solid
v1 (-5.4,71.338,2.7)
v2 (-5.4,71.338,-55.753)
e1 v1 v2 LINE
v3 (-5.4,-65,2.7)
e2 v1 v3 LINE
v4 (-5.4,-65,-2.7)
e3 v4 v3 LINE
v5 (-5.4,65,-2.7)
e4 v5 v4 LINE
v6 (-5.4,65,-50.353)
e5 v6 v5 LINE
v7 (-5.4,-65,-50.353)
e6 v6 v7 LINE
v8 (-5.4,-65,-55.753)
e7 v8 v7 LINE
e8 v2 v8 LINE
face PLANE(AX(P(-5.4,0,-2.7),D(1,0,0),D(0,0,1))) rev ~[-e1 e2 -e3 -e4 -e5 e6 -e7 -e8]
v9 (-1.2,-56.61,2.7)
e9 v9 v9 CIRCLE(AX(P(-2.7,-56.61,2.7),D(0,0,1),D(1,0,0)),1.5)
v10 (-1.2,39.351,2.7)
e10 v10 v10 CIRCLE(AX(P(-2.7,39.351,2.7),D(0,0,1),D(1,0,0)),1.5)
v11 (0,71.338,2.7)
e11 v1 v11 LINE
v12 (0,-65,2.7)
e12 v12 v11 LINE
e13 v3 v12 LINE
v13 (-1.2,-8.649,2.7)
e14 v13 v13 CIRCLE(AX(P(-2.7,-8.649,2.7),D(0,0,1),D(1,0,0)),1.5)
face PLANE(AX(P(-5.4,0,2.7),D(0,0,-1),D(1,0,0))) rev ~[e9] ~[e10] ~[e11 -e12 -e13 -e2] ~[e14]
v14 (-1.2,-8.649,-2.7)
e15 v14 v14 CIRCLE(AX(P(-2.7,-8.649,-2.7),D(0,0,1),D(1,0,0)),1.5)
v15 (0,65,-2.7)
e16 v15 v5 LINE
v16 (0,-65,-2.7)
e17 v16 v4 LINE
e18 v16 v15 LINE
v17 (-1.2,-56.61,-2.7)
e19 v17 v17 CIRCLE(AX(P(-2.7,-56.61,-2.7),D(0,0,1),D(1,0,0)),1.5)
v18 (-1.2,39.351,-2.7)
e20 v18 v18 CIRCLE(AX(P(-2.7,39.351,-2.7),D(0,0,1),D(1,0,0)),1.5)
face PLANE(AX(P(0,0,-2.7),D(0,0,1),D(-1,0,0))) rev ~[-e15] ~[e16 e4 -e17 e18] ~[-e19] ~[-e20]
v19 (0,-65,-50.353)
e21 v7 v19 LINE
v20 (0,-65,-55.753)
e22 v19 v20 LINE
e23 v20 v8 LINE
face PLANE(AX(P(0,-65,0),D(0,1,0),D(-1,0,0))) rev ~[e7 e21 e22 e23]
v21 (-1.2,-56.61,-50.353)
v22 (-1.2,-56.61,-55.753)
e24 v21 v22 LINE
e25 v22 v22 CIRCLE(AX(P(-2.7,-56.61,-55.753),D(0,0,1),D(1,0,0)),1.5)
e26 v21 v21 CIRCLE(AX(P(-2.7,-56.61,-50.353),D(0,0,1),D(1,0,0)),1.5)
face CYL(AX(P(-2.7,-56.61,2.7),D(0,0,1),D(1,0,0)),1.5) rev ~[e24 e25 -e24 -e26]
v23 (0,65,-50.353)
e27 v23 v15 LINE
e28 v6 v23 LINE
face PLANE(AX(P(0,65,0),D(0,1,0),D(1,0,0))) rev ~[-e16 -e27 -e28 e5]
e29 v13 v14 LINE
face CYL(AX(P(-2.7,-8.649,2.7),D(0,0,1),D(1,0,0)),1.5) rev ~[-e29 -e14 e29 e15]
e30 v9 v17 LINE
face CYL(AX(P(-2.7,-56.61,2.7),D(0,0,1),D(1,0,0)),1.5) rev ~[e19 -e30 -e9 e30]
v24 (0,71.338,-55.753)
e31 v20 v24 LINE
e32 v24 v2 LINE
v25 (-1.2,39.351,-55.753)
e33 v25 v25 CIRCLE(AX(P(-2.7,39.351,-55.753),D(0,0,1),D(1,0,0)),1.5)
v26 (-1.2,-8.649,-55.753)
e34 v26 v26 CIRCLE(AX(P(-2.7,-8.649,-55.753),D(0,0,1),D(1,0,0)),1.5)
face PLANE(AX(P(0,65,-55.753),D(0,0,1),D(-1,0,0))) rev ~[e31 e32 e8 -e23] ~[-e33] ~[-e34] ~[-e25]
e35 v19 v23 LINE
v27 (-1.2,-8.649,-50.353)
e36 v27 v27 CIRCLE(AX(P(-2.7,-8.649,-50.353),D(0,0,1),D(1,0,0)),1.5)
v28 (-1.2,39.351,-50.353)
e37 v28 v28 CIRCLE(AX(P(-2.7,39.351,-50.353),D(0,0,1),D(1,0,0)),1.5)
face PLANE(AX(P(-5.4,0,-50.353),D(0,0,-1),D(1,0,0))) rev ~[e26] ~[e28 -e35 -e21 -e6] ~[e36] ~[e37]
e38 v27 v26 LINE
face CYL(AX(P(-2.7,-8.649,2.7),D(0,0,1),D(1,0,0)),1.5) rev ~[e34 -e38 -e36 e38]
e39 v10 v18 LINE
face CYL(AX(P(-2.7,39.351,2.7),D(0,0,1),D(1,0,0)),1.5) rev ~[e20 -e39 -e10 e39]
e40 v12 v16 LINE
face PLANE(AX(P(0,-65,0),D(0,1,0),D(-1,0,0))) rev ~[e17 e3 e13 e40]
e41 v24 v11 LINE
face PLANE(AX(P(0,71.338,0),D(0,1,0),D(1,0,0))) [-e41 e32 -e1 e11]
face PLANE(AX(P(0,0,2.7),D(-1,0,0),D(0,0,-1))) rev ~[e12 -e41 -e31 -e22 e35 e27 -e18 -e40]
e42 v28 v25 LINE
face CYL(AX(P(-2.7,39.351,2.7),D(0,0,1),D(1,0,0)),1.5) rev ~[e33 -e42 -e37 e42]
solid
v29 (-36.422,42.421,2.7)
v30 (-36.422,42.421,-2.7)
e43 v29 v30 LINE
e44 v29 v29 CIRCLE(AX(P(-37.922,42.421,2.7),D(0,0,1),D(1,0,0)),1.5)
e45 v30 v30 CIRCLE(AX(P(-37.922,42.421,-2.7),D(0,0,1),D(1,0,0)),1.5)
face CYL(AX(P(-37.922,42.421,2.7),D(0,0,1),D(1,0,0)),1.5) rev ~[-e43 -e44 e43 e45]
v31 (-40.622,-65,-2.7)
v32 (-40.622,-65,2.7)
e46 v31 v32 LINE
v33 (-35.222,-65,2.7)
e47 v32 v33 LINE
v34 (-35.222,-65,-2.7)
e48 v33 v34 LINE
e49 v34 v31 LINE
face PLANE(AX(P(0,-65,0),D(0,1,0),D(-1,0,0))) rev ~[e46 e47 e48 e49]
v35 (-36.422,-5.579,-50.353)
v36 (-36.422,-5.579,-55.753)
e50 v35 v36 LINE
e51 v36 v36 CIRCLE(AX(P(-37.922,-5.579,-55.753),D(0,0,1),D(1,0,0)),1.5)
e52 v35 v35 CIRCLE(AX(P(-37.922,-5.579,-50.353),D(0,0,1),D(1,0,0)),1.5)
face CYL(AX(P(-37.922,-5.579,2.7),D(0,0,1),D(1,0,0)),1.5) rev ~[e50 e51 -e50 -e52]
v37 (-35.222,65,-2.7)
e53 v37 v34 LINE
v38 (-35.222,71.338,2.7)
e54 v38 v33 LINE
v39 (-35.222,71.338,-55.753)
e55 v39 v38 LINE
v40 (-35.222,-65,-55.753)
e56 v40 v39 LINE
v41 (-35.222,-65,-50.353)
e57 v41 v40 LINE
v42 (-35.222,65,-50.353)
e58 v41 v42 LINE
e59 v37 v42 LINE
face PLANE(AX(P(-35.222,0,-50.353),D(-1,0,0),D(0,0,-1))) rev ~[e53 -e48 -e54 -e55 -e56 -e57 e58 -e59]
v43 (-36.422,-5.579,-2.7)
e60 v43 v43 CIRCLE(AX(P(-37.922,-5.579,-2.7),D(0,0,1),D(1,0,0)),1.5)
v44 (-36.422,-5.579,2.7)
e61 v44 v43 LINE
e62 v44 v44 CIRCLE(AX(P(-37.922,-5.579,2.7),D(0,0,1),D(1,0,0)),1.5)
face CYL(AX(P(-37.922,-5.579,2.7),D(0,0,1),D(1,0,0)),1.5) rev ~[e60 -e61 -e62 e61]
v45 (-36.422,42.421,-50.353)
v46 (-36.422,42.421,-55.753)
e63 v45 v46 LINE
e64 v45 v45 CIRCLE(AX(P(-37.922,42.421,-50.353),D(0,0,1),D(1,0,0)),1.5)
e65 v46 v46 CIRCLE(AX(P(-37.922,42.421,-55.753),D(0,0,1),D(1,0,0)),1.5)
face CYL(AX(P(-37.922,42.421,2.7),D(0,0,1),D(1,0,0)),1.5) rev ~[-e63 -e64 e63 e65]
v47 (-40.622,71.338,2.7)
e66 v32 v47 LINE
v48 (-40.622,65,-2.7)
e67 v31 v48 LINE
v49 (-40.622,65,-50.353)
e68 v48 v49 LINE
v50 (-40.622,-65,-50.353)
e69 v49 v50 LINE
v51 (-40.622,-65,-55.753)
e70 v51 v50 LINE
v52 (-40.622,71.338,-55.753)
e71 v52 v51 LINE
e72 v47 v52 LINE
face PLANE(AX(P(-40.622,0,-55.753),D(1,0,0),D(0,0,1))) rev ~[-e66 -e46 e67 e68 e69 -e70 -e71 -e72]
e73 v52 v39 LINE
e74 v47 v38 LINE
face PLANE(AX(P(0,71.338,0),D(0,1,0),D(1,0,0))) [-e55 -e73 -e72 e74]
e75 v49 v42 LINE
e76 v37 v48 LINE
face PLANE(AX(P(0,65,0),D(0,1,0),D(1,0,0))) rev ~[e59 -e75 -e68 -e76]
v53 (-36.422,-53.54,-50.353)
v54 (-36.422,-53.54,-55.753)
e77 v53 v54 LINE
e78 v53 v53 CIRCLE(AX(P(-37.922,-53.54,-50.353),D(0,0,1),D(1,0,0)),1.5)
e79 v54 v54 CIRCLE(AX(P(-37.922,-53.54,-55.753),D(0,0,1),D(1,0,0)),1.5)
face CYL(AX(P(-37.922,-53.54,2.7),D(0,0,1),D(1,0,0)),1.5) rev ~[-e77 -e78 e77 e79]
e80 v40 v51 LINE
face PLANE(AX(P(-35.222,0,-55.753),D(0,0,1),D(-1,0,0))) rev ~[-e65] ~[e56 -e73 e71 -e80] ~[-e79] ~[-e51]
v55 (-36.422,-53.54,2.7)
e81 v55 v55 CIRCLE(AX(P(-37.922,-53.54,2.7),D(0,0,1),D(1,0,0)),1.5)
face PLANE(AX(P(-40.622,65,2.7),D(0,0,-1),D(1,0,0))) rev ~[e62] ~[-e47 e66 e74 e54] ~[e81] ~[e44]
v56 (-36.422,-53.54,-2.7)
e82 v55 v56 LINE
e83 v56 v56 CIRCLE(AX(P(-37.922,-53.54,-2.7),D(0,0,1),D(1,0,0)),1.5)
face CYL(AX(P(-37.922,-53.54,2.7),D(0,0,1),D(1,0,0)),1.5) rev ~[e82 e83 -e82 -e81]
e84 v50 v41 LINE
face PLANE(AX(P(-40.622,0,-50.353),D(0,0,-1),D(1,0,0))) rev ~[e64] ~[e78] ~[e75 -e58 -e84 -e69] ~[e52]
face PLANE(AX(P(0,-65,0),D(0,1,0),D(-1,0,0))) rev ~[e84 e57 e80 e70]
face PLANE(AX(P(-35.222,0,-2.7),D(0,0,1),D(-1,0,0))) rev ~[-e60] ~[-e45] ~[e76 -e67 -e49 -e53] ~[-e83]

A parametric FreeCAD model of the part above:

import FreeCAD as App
import Part
import Sketcher

doc = App.newDocument("Part")
body = doc.addObject("PartDesign::Body", "Body")
body.AllowCompound = True

sketch1 = doc.addObject("Sketcher::SketchObject", "Sketch")
body.addObject(sketch1)
sketch1.AttachmentSupport = (doc.XZ_Plane, [""])
sketch1.MapMode = "FlatFace"
sketch1.addGeometry(Part.LineSegment(App.Vector(-5.4, 2.7, 0), App.Vector(0, 2.7, 0)), False)
sketch1.addGeometry(Part.LineSegment(App.Vector(0, 2.7, 0), App.Vector(0, -2.7, 0)), False)
sketch1.addGeometry(Part.LineSegment(App.Vector(0, -2.7, 0), App.Vector(-5.4, -2.7, 0)), False)
sketch1.addGeometry(Part.LineSegment(App.Vector(-5.4, -2.7, 0), App.Vector(-5.4, 2.7, 0)), False)
sketch1.addGeometry(Part.LineSegment(App.Vector(-5.4, -50.353, 0), App.Vector(0, -50.353, 0)), False)
sketch1.addGeometry(Part.LineSegment(App.Vector(0, -50.353, 0), App.Vector(0, -55.753, 0)), False)
sketch1.addGeometry(Part.LineSegment(App.Vector(0, -55.753, 0), App.Vector(-5.4, -55.753, 0)), False)
sketch1.addGeometry(Part.LineSegment(App.Vector(-5.4, -55.753, 0), App.Vector(-5.4, -50.353, 0)), False)
sketch1.addGeometry(Part.LineSegment(App.Vector(-40.622, -50.353, 0), App.Vector(-35.222, -50.353, 0)), False)
sketch1.addGeometry(Part.LineSegment(App.Vector(-35.222, -50.353, 0), App.Vector(-35.222, -55.753, 0)), False)
sketch1.addGeometry(Part.LineSegment(App.Vector(-35.222, -55.753, 0), App.Vector(-40.622, -55.753, 0)), False)
sketch1.addGeometry(Part.LineSegment(App.Vector(-40.622, -55.753, 0), App.Vector(-40.622, -50.353, 0)), False)
sketch1.addGeometry(Part.LineSegment(App.Vector(-35.222, -2.7, 0), App.Vector(-40.622, -2.7, 0)), False)
sketch1.addGeometry(Part.LineSegment(App.Vector(-40.622, -2.7, 0), App.Vector(-40.622, 2.7, 0)), False)
sketch1.addGeometry(Part.LineSegment(App.Vector(-40.622, 2.7, 0), App.Vector(-35.222, 2.7, 0)), False)
sketch1.addGeometry(Part.LineSegment(App.Vector(-35.222, 2.7, 0), App.Vector(-35.222, -2.7, 0)), False)
sketch1.addConstraint(Sketcher.Constraint("Coincident", 0, 2, 1, 1))
sketch1.addConstraint(Sketcher.Constraint("Coincident", 1, 2, 2, 1))
sketch1.addConstraint(Sketcher.Constraint("Coincident", 2, 2, 3, 1))
sketch1.addConstraint(Sketcher.Constraint("Coincident", 3, 2, 0, 1))
sketch1.addConstraint(Sketcher.Constraint("Coincident", 4, 2, 5, 1))
sketch1.addConstraint(Sketcher.Constraint("Coincident", 5, 2, 6, 1))
sketch1.addConstraint(Sketcher.Constraint("Coincident", 6, 2, 7, 1))
sketch1.addConstraint(Sketcher.Constraint("Coincident", 7, 2, 4, 1))
sketch1.addConstraint(Sketcher.Constraint("Coincident", 8, 2, 9, 1))
sketch1.addConstraint(Sketcher.Constraint("Coincident", 9, 2, 10, 1))
sketch1.addConstraint(Sketcher.Constraint("Coincident", 10, 2, 11, 1))
sketch1.addConstraint(Sketcher.Constraint("Coincident", 11, 2, 8, 1))
sketch1.addConstraint(Sketcher.Constraint("Coincident", 12, 2, 13, 1))
sketch1.addConstraint(Sketcher.Constraint("Coincident", 13, 2, 14, 1))
sketch1.addConstraint(Sketcher.Constraint("Coincident", 14, 2, 15, 1))
sketch1.addConstraint(Sketcher.Constraint("Coincident", 15, 2, 12, 1))
sketch1.addConstraint(Sketcher.Constraint("Horizontal", 0))
sketch1.addConstraint(Sketcher.Constraint("Vertical", 1))
sketch1.addConstraint(Sketcher.Constraint("Horizontal", 2))
sketch1.addConstraint(Sketcher.Constraint("Vertical", 3))
sketch1.addConstraint(Sketcher.Constraint("Horizontal", 4))
sketch1.addConstraint(Sketcher.Constraint("Vertical", 5))
sketch1.addConstraint(Sketcher.Constraint("Horizontal", 6))
sketch1.addConstraint(Sketcher.Constraint("Vertical", 7))
sketch1.addConstraint(Sketcher.Constraint("Horizontal", 8))
sketch1.addConstraint(Sketcher.Constraint("Vertical", 9))
sketch1.addConstraint(Sketcher.Constraint("Horizontal", 10))
sketch1.addConstraint(Sketcher.Constraint("Vertical", 11))
sketch1.addConstraint(Sketcher.Constraint("Horizontal", 12))
sketch1.addConstraint(Sketcher.Constraint("Vertical", 13))
sketch1.addConstraint(Sketcher.Constraint("Horizontal", 14))
sketch1.addConstraint(Sketcher.Constraint("Vertical", 15))
sketch1.addConstraint(Sketcher.Constraint("Symmetric", 0, 2, 1, 2, -1, 1))
sketch1.addConstraint(Sketcher.Constraint("PointOnObject", 4, 2, -2))
sketch1.addConstraint(Sketcher.Constraint("Horizontal", 7, 2, 8, 2))
sketch1.addConstraint(Sketcher.Constraint("Horizontal", 6, 2, 9, 2))
sketch1.addConstraint(Sketcher.Constraint("Horizontal", 2, 2, 12, 2))
sketch1.addConstraint(Sketcher.Constraint("Horizontal", 3, 2, 13, 2))
sketch1.addConstraint(Sketcher.Constraint("Vertical", 3, 2, 6, 2))
sketch1.addConstraint(Sketcher.Constraint("Vertical", 11, 2, 12, 2))
sketch1.addConstraint(Sketcher.Constraint("Vertical", 9, 2, 14, 2))
sketch1.addConstraint(Sketcher.Constraint("Equal", 6, 8))
sketch1.addConstraint(Sketcher.Constraint("Equal", 14, 1))
sketch1.addConstraint(Sketcher.Constraint("Equal", 3, 5))
sketch1.addConstraint(Sketcher.Constraint("DistanceX", 0, 1, 0, 2, 5.4))
sketch1.addConstraint(Sketcher.Constraint("DistanceX", 8, 2, -1, 1, 35.222))
sketch1.addConstraint(Sketcher.Constraint("DistanceY", 4, 2, 1, 2, 47.653))
pad1 = doc.addObject("PartDesign::Pad", "Pad")
body.addObject(pad1)
pad1.Profile = sketch1
pad1.Length = 130
pad1.Midplane = True

sketch2 = doc.addObject("Sketcher::SketchObject", "Sketch001")
body.addObject(sketch2)
sketch2.AttachmentSupport = (doc.XZ_Plane, [""])
sketch2.MapMode = "FlatFace"
sketch2.AttachmentOffset = App.Placement(App.Vector(0, 0, -65), App.Rotation())
sketch2.addGeometry(Part.LineSegment(App.Vector(-40.622, -55.753, 0), App.Vector(-40.622, 2.7, 0)), False)
sketch2.addGeometry(Part.LineSegment(App.Vector(-40.622, 2.7, 0), App.Vector(-35.222, 2.7, 0)), False)
sketch2.addGeometry(Part.LineSegment(App.Vector(-35.222, 2.7, 0), App.Vector(-35.222, -55.753, 0)), False)
sketch2.addGeometry(Part.LineSegment(App.Vector(-35.222, -55.753, 0), App.Vector(-40.622, -55.753, 0)), False)
sketch2.addGeometry(Part.LineSegment(App.Vector(0, -55.753, 0), App.Vector(-5.4, -55.753, 0)), False)
sketch2.addGeometry(Part.LineSegment(App.Vector(-5.4, -55.753, 0), App.Vector(-5.4, 2.7, 0)), False)
sketch2.addGeometry(Part.LineSegment(App.Vector(-5.4, 2.7, 0), App.Vector(0, 2.7, 0)), False)
sketch2.addGeometry(Part.LineSegment(App.Vector(0, 2.7, 0), App.Vector(0, -55.753, 0)), False)
sketch2.addConstraint(Sketcher.Constraint("Coincident", 0, 2, 1, 1))
sketch2.addConstraint(Sketcher.Constraint("Coincident", 1, 2, 2, 1))
sketch2.addConstraint(Sketcher.Constraint("Coincident", 2, 2, 3, 1))
sketch2.addConstraint(Sketcher.Constraint("Coincident", 3, 2, 0, 1))
sketch2.addConstraint(Sketcher.Constraint("Coincident", 4, 2, 5, 1))
sketch2.addConstraint(Sketcher.Constraint("Coincident", 5, 2, 6, 1))
sketch2.addConstraint(Sketcher.Constraint("Coincident", 6, 2, 7, 1))
sketch2.addConstraint(Sketcher.Constraint("Coincident", 7, 2, 4, 1))
sketch2.addConstraint(Sketcher.Constraint("Vertical", 0))
sketch2.addConstraint(Sketcher.Constraint("Horizontal", 1))
sketch2.addConstraint(Sketcher.Constraint("Vertical", 2))
sketch2.addConstraint(Sketcher.Constraint("Horizontal", 3))
sketch2.addConstraint(Sketcher.Constraint("Horizontal", 4))
sketch2.addConstraint(Sketcher.Constraint("Vertical", 5))
sketch2.addConstraint(Sketcher.Constraint("Horizontal", 6))
sketch2.addConstraint(Sketcher.Constraint("Vertical", 7))
sketch2.addConstraint(Sketcher.Constraint("PointOnObject", 6, 2, -2))
sketch2.addConstraint(Sketcher.Constraint("Horizontal", 3, 2, 4, 2))
sketch2.addConstraint(Sketcher.Constraint("Horizontal", 1, 2, 5, 2))
sketch2.addConstraint(Sketcher.Constraint("Equal", 3, 4))
sketch2.addConstraint(Sketcher.Constraint("DistanceX", 1, 1, 1, 2, 5.4))
sketch2.addConstraint(Sketcher.Constraint("DistanceY", -1, 1, 0, 2, 2.7))
sketch2.addConstraint(Sketcher.Constraint("DistanceY", 0, 1, 0, 2, 58.453))
sketch2.addConstraint(Sketcher.Constraint("DistanceX", 0, 2, -1, 1, 40.622))
pad2 = doc.addObject("PartDesign::Pad", "Pad001")
body.addObject(pad2)
pad2.Profile = sketch2
pad2.Length = 6.338
pad2.Reversed = True

sketch3 = doc.addObject("Sketcher::SketchObject", "Sketch002")
body.addObject(sketch3)
sketch3.AttachmentSupport = (doc.XY_Plane, [""])
sketch3.MapMode = "FlatFace"
sketch3.AttachmentOffset = App.Placement(App.Vector(0, 0, 2.7), App.Rotation())
sketch3.addGeometry(Part.Circle(App.Vector(-2.7, -56.61, 0), App.Vector(0, 0, 1), 1.5), False)
sketch3.addGeometry(Part.Circle(App.Vector(-2.7, -8.649, 0), App.Vector(0, 0, 1), 1.5), False)
sketch3.addGeometry(Part.Circle(App.Vector(-2.7, 39.351, 0), App.Vector(0, 0, 1), 1.5), False)
sketch3.addGeometry(Part.Circle(App.Vector(-37.922, -53.54, 0), App.Vector(0, 0, 1), 1.5), False)
sketch3.addGeometry(Part.Circle(App.Vector(-37.922, -5.579, 0), App.Vector(0, 0, 1), 1.5), False)
sketch3.addGeometry(Part.Circle(App.Vector(-37.922, 42.421, 0), App.Vector(0, 0, 1), 1.5), False)
sketch3.addConstraint(Sketcher.Constraint("Equal", 0, 1))
sketch3.addConstraint(Sketcher.Constraint("Equal", 1, 2))
sketch3.addConstraint(Sketcher.Constraint("Equal", 2, 3))
sketch3.addConstraint(Sketcher.Constraint("Equal", 3, 4))
sketch3.addConstraint(Sketcher.Constraint("Equal", 4, 5))
sketch3.addConstraint(Sketcher.Constraint("Vertical", 0, 3, 1, 3))
sketch3.addConstraint(Sketcher.Constraint("Vertical", 1, 3, 2, 3))
sketch3.addConstraint(Sketcher.Constraint("Vertical", 3, 3, 4, 3))
sketch3.addConstraint(Sketcher.Constraint("Vertical", 4, 3, 5, 3))
sketch3.addConstraint(Sketcher.Constraint("Diameter", 0, 3.0))
sketch3.addConstraint(Sketcher.Constraint("DistanceY", 1, 3, 2, 3, 48.0))
sketch3.addConstraint(Sketcher.Constraint("DistanceY", 4, 3, 5, 3, 48.0))
sketch3.addConstraint(Sketcher.Constraint("DistanceY", 0, 3, 3, 3, 3.07))
sketch3.addConstraint(Sketcher.Constraint("DistanceY", 1, 3, 4, 3, 3.07))
sketch3.addConstraint(Sketcher.Constraint("DistanceY", 0, 3, 1, 3, 47.961))
sketch3.addConstraint(Sketcher.Constraint("DistanceX", 0, 3, -1, 1, 2.7))
sketch3.addConstraint(Sketcher.Constraint("DistanceY", 0, 3, -1, 1, 56.61))
sketch3.addConstraint(Sketcher.Constraint("DistanceX", 3, 3, -1, 1, 37.922))
pocket1 = doc.addObject("PartDesign::Pocket", "Pocket")
body.addObject(pocket1)
pocket1.Profile = sketch3
pocket1.Length = 58.453

doc.recompute()
